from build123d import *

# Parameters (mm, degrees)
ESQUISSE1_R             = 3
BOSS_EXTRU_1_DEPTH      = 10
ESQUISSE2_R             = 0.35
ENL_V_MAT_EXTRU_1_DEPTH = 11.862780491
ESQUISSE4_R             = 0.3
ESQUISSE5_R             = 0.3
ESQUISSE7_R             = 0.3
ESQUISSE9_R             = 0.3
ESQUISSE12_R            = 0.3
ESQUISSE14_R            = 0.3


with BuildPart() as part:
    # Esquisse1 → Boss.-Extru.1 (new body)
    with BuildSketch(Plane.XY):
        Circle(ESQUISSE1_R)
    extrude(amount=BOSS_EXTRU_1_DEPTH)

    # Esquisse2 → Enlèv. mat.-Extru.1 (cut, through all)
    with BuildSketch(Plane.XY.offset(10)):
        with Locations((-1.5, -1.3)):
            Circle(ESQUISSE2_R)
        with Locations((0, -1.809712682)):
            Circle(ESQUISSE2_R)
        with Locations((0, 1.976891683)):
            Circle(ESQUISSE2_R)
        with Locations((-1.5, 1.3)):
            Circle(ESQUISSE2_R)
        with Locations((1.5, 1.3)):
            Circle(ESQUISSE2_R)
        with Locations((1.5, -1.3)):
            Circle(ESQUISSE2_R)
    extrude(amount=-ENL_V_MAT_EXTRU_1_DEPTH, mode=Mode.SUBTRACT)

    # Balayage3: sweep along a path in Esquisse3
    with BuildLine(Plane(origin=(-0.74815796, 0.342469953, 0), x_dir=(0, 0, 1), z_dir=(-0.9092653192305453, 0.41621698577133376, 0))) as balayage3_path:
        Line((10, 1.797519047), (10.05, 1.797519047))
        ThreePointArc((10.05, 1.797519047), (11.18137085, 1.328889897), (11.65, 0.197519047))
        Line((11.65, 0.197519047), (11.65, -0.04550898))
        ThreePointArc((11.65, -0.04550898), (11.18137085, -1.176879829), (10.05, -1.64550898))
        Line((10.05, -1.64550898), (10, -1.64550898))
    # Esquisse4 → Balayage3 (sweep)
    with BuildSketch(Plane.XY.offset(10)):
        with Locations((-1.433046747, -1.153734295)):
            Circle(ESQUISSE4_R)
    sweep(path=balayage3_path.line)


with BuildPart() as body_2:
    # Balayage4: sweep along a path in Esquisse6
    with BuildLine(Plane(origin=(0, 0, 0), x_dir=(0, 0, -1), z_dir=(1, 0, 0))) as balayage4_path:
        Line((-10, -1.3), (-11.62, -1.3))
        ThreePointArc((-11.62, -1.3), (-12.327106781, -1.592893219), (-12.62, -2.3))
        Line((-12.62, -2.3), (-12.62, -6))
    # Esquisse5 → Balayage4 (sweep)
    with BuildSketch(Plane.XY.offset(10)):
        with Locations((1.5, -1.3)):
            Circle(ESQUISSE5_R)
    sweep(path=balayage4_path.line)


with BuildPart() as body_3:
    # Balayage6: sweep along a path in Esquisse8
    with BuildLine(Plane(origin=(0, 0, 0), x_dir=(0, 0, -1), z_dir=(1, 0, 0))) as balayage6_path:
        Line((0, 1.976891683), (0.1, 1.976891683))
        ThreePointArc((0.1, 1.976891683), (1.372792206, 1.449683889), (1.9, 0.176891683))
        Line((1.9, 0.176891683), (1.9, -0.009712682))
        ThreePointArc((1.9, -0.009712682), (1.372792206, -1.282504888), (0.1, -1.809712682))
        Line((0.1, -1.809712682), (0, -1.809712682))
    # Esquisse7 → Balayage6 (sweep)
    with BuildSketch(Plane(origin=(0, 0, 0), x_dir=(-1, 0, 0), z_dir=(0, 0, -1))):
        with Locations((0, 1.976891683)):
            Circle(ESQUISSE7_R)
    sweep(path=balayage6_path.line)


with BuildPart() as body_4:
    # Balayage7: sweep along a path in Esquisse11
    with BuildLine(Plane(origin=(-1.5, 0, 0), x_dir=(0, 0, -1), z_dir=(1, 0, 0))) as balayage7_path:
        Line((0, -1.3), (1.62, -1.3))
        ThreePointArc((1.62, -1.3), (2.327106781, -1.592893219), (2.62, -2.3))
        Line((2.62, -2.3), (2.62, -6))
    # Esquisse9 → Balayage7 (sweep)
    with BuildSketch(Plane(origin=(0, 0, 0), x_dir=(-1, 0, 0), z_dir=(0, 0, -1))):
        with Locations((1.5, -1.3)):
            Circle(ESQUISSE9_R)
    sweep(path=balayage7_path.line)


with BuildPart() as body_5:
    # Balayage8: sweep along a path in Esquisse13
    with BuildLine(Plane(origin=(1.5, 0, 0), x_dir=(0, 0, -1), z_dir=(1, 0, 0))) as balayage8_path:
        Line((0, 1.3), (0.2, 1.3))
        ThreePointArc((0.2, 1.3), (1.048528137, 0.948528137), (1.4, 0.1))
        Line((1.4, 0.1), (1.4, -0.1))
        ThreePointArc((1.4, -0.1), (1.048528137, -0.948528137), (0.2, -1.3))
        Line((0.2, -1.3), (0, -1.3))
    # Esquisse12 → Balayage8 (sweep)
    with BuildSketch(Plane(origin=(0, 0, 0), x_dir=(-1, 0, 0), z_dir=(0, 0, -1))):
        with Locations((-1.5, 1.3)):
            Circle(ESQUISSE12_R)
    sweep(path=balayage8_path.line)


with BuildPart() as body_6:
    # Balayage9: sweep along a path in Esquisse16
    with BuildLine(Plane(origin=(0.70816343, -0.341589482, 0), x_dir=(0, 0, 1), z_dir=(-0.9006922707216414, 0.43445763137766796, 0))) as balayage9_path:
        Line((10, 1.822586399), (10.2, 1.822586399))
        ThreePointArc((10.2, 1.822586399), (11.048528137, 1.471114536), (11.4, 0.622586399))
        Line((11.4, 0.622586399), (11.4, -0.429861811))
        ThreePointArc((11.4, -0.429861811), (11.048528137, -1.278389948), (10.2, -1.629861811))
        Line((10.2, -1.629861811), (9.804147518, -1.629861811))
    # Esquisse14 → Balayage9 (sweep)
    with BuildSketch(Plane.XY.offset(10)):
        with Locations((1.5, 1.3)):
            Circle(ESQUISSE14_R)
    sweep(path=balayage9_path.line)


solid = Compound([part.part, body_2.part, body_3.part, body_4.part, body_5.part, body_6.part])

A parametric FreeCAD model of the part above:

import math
import FreeCAD as App
import Part
import Sketcher
from FreeCAD import Vector

doc = App.newDocument("Part")
params = doc.addObject("Spreadsheet::Sheet", "Params")
for row, (alias, value) in enumerate([
    ("sketch1_diameter", "6 mm"),
    ("pad1_length", "10 mm"),
    ("sketch2_diameter", "0.7 mm"),
    ("sketch3_diameter", "0.6 mm"),
    ("sketch4_radius", "1.6 mm"),
    ("sketch4_height", "0.05 mm"),
    ("sketch5_diameter", "0.6 mm"),
    ("sketch6_radius", "1 mm"),
    ("sketch6_width", "3.7 mm"),
    ("sketch6_height", "1.62 mm"),
    ("sketch7_diameter", "0.6 mm"),
    ("sketch8_radius", "1.8 mm"),
    ("sketch8_height", "0.1 mm"),
    ("sketch9_diameter", "0.6 mm"),
    ("sketch10_radius", "1 mm"),
    ("sketch10_width", "3.7 mm"),
    ("sketch10_height", "1.62 mm"),
    ("sketch11_diameter", "0.6 mm"),
    ("sketch12_radius", "1.2 mm"),
    ("sketch12_width", "0.2 mm"),
    ("sketch13_diameter", "0.6 mm"),
    ("sketch14_radius", "1.2 mm"),
    ("sketch14_height", "0.2 mm"),
], start=1):
    params.set(f"A{row}", alias)
    params.set(f"B{row}", "=" + value)
    params.setAlias(f"B{row}", alias)

body = doc.addObject("PartDesign::Body", "Body")

# Sketch on XY plane
sketch1 = body.newObject("Sketcher::SketchObject", "Sketch")
sketch1.AttachmentSupport = (doc.getObject("XY_Plane"), [""])
sketch1.MapMode = "FlatFace"
sketch1.addGeometry(Part.Circle(Vector(0, 0, 0), Vector(0, 0, 1), 3), False)
sketch1.addConstraint([
    Sketcher.Constraint("Coincident", 0, 3, -1, 1),
    Sketcher.Constraint("Diameter", 0, 6.0),
])
sketch1.setExpression("Constraints[1]", "Params.sketch1_diameter")
pad1 = body.newObject("PartDesign::Pad", "Pad")
pad1.Profile = sketch1
pad1.setExpression("Length", "Params.pad1_length")

# Sketch on XY plane
sketch2 = body.newObject("Sketcher::SketchObject", "Sketch001")
sketch2.AttachmentSupport = (doc.getObject("XY_Plane"), [""])
sketch2.MapMode = "FlatFace"
sketch2.AttachmentOffset = App.Placement(Vector(0, 0, 10), App.Rotation())
sketch2.addGeometry([
    Part.Circle(Vector(-1.5, -1.3, 0), Vector(0, 0, 1), 0.35),  # 0
    Part.Circle(Vector(0, -1.81, 0), Vector(0, 0, 1), 0.35),  # 1
    Part.Circle(Vector(0, 1.98, 0), Vector(0, 0, 1), 0.35),  # 2
    Part.Circle(Vector(-1.5, 1.3, 0), Vector(0, 0, 1), 0.35),  # 3
    Part.Circle(Vector(1.5, 1.3, 0), Vector(0, 0, 1), 0.35),  # 4
    Part.Circle(Vector(1.5, -1.3, 0), Vector(0, 0, 1), 0.35),  # 5
], False)
sketch2.addConstraint([
    Sketcher.Constraint("Equal", 0, 1),
    Sketcher.Constraint("Equal", 1, 2),
    Sketcher.Constraint("Equal", 2, 3),
    Sketcher.Constraint("Equal", 3, 4),
    Sketcher.Constraint("Equal", 4, 5),
    Sketcher.Constraint("Symmetric", 0, 3, 4, 3, -1, 1),
    Sketcher.Constraint("Symmetric", 3, 3, 5, 3, -1, 1),
    Sketcher.Constraint("Symmetric", 3, 3, 4, 3, -2),
    Sketcher.Constraint("PointOnObject", 1, 3, -2),
    Sketcher.Constraint("PointOnObject", 2, 3, -2),
    Sketcher.Constraint("Diameter", 0, 0.7),
    Sketcher.Constraint("DistanceX", 3, 3, 4, 3, 3.0),
    Sketcher.Constraint("DistanceY", 0, 3, -1, 1, 1.3),
    Sketcher.Constraint("DistanceY", -1, 1, 2, 3, 1.976892),
    Sketcher.Constraint("DistanceY", 1, 3, -1, 1, 1.809713),
])
sketch2.setExpression("Constraints[10]", "Params.sketch2_diameter")
pocket1 = body.newObject("PartDesign::Pocket", "Pocket")
pocket1.Profile = sketch2
pocket1.Type = "ThroughAll"

# Sketch on XY plane
sketch3 = body.newObject("Sketcher::SketchObject", "Sketch002")
sketch3.AttachmentSupport = (doc.getObject("XY_Plane"), [""])
sketch3.MapMode = "FlatFace"
sketch3.AttachmentOffset = App.Placement(Vector(0, 0, 10), App.Rotation())
sketch3.addGeometry(Part.Circle(Vector(-1.43, -1.15, 0), Vector(0, 0, 1), 0.3), False)
sketch3.addConstraint([
    Sketcher.Constraint("Diameter", 0, 0.6),
    Sketcher.Constraint("DistanceX", 0, 3, -1, 1, 1.433047),
    Sketcher.Constraint("DistanceY", 0, 3, -1, 1, 1.153734),
])
sketch3.setExpression("Constraints[0]", "Params.sketch3_diameter")

# Sketch on an angled plane
sketch4 = body.newObject("Sketcher::SketchObject", "Sketch003")
sketch4.Placement = App.Placement(Vector(-0.748158, 0.34247, 0), App.Rotation(Vector(-0.416216986, -0.909265319, 0), Vector(0, 0, 1), Vector(-0.909265319, 0.416216986, 0), "ZXY"))
sketch4.addGeometry([
    Part.LineSegment(Vector(-1.8, 10, 0), Vector(-1.8, 10.05, 0)),  # 0
    Part.ArcOfCircle(Part.Circle(Vector(-0.2, 10.05, 0), Vector(0, 0, 1), 1.6), math.radians(90), math.radians(180)),  # 1
    Part.LineSegment(Vector(-0.2, 11.65, 0), Vector(0.05, 11.65, 0)),  # 2
    Part.ArcOfCircle(Part.Circle(Vector(0.05, 10.05, 0), Vector(0, 0, 1), 1.6), math.radians(0), math.radians(90)),  # 3
    Part.LineSegment(Vector(1.65, 10.05, 0), Vector(1.65, 10, 0)),  # 4
], False)
sketch4.addConstraint([
    Sketcher.Constraint("Tangent", 0, 2, 1, 2),
    Sketcher.Constraint("Tangent", 1, 1, 2, 1),
    Sketcher.Constraint("Tangent", 2, 2, 3, 2),
    Sketcher.Constraint("Tangent", 3, 1, 4, 1),
    Sketcher.Constraint("Vertical", 0),
    Sketcher.Constraint("Horizontal", 2),
    Sketcher.Constraint("Vertical", 4),
    Sketcher.Constraint("Equal", 1, 3),
    Sketcher.Constraint("Horizontal", 0, 1, 4, 2),
    Sketcher.Constraint("Radius", 1, 1.6),
    Sketcher.Constraint("DistanceY", -1, 1, 0, 1, 10.0),
    Sketcher.Constraint("DistanceY", 0, 1, 0, 2, 0.05),
    Sketcher.Constraint("DistanceX", 2, 1, 2, 2, 0.243028),
    Sketcher.Constraint("DistanceX", 1, 3, -1, 1, 0.197519),
])
sketch4.setExpression("Constraints[9]", "Params.sketch4_radius")
sketch4.setExpression("Constraints[11]", "Params.sketch4_height")
doc.recompute()

additivepipe = body.newObject("PartDesign::AdditivePipe", "AdditivePipe")
additivepipe.Profile = sketch3
additivepipe.Spine = (sketch4, ["Edge1", "Edge2", "Edge3", "Edge4", "Edge5"])
body2 = doc.addObject("PartDesign::Body", "Body001")

# Sketch on XY plane
sketch5 = body2.newObject("Sketcher::SketchObject", "Sketch004")
sketch5.AttachmentSupport = (doc.getObject("XY_Plane001"), [""])
sketch5.MapMode = "FlatFace"
sketch5.AttachmentOffset = App.Placement(Vector(0, 0, 10), App.Rotation())
sketch5.addGeometry(Part.Circle(Vector(1.5, -1.3, 0), Vector(0, 0, 1), 0.3), False)
sketch5.addConstraint([
    Sketcher.Constraint("Diameter", 0, 0.6),
    Sketcher.Constraint("DistanceX", -1, 1, 0, 3, 1.5),
    Sketcher.Constraint("DistanceY", 0, 3, -1, 1, 1.3),
])
sketch5.setExpression("Constraints[0]", "Params.sketch5_diameter")

# Sketch on YZ plane
sketch6 = body2.newObject("Sketcher::SketchObject", "Sketch005")
sketch6.AttachmentSupport = (doc.getObject("YZ_Plane001"), [""])
sketch6.MapMode = "FlatFace"
sketch6.addGeometry([
    Part.LineSegment(Vector(-1.3, 10, 0), Vector(-1.3, 11.6, 0)),
    Part.ArcOfCircle(Part.Circle(Vector(-2.3, 11.6, 0), Vector(0, 0, 1), 1), math.radians(0), math.radians(90)),
    Part.LineSegment(Vector(-2.3, 12.6, 0), Vector(-6, 12.6, 0)),
], False)
sketch6.addConstraint([
    Sketcher.Constraint("Tangent", 0, 2, 1, 1),
    Sketcher.Constraint("Tangent", 1, 2, 2, 1),
    Sketcher.Constraint("Vertical", 0),
    Sketcher.Constraint("Horizontal", 2),
    Sketcher.Constraint("Radius", 1, 1.0),
    Sketcher.Constraint("DistanceX", 2, 2, 2, 1, 3.7),
    Sketcher.Constraint("DistanceY", -1, 1, 0, 1, 10.0),
    Sketcher.Constraint("DistanceX", 2, 2, -1, 1, 6.0),
    Sketcher.Constraint("DistanceY", 0, 1, 0, 2, 1.62),
])
sketch6.setExpression("Constraints[4]", "Params.sketch6_radius")
sketch6.setExpression("Constraints[5]", "Params.sketch6_width")
sketch6.setExpression("Constraints[8]", "Params.sketch6_height")
doc.recompute()

additivepipe2 = body2.newObject("PartDesign::AdditivePipe", "AdditivePipe001")
additivepipe2.Profile = sketch5
additivepipe2.Spine = (sketch6, ["Edge1", "Edge2", "Edge3"])
body3 = doc.addObject("PartDesign::Body", "Body002")

# Sketch on XY plane
sketch7 = body3.newObject("Sketcher::SketchObject", "Sketch006")
sketch7.AttachmentSupport = (doc.getObject("XY_Plane002"), [""])
sketch7.MapMode = "FlatFace"
sketch7.addGeometry(Part.Circle(Vector(0, 1.98, 0), Vector(0, 0, 1), 0.3), False)
sketch7.addConstraint([
    Sketcher.Constraint("PointOnObject", 0, 3, -2),
    Sketcher.Constraint("Diameter", 0, 0.6),
    Sketcher.Constraint("DistanceY", -1, 1, 0, 3, 1.976892),
])
sketch7.setExpression("Constraints[1]", "Params.sketch7_diameter")

# Sketch on YZ plane
sketch8 = body3.newObject("Sketcher::SketchObject", "Sketch007")
sketch8.AttachmentSupport = (doc.getObject("YZ_Plane002"), [""])
sketch8.MapMode = "FlatFace"
sketch8.addGeometry([
    Part.LineSegment(Vector(1.98, 0, 0), Vector(1.98, -0.1, 0)),  # 0
    Part.ArcOfCircle(Part.Circle(Vector(0.18, -0.1, 0), Vector(0, 0, 1), 1.8), math.radians(-90), math.radians(0)),  # 1
    Part.LineSegment(Vector(0.18, -1.9, 0), Vector(-0.01, -1.9, 0)),  # 2
    Part.ArcOfCircle(Part.Circle(Vector(-0.01, -0.1, 0), Vector(0, 0, 1), 1.8), math.radians(180), math.radians(270)),  # 3
    Part.LineSegment(Vector(-1.81, -0.1, 0), Vector(-1.81, 0, 0)),  # 4
], False)
sketch8.addConstraint([
    Sketcher.Constraint("Tangent", 0, 2, 1, 2),
    Sketcher.Constraint("Tangent", 1, 1, 2, 1),
    Sketcher.Constraint("Tangent", 2, 2, 3, 2),
    Sketcher.Constraint("Tangent", 3, 1, 4, 1),
    Sketcher.Constraint("Vertical", 0),
    Sketcher.Constraint("Horizontal", 2),
    Sketcher.Constraint("Vertical", 4),
    Sketcher.Constraint("Equal", 1, 3),
    Sketcher.Constraint("PointOnObject", 0, 1, -1),
    Sketcher.Constraint("PointOnObject", 4, 2, -1),
    Sketcher.Constraint("Radius", 1, 1.8),
    Sketcher.Constraint("DistanceY", 0, 2, 0, 1, 0.1),
    Sketcher.Constraint("DistanceX", 2, 2, 2, 1, 0.186604),
    Sketcher.Constraint("DistanceX", -1, 1, 1, 3, 0.176892),
])
sketch8.setExpression("Constraints[10]", "Params.sketch8_radius")
sketch8.setExpression("Constraints[11]", "Params.sketch8_height")
doc.recompute()

additivepipe3 = body3.newObject("PartDesign::AdditivePipe", "AdditivePipe002")
additivepipe3.Profile = sketch7
additivepipe3.Spine = (sketch8, ["Edge1", "Edge2", "Edge3", "Edge4", "Edge5"])
body4 = doc.addObject("PartDesign::Body", "Body003")

# Sketch on XY plane
sketch9 = body4.newObject("Sketcher::SketchObject", "Sketch008")
sketch9.AttachmentSupport = (doc.getObject("XY_Plane003"), [""])
sketch9.MapMode = "FlatFace"
sketch9.addGeometry(Part.Circle(Vector(-1.5, -1.3, 0), Vector(0, 0, 1), 0.3), False)
sketch9.addConstraint([
    Sketcher.Constraint("Diameter", 0, 0.6),
    Sketcher.Constraint("DistanceX", 0, 3, -1, 1, 1.5),
    Sketcher.Constraint("DistanceY", 0, 3, -1, 1, 1.3),
])
sketch9.setExpression("Constraints[0]", "Params.sketch9_diameter")

# Sketch on YZ plane
sketch10 = body4.newObject("Sketcher::SketchObject", "Sketch009")
sketch10.AttachmentSupport = (doc.getObject("YZ_Plane003"), [""])
sketch10.MapMode = "FlatFace"
sketch10.AttachmentOffset = App.Placement(Vector(0, 0, -1.5), App.Rotation())
sketch10.addGeometry([
    Part.LineSegment(Vector(-1.3, 0, 0), Vector(-1.3, -1.6, 0)),
    Part.ArcOfCircle(Part.Circle(Vector(-2.3, -1.6, 0), Vector(0, 0, 1), 1), math.radians(-90), math.radians(0)),
    Part.LineSegment(Vector(-2.3, -2.6, 0), Vector(-6, -2.6, 0)),
], False)
sketch10.addConstraint([
    Sketcher.Constraint("Tangent", 0, 2, 1, 2),
    Sketcher.Constraint("Tangent", 1, 1, 2, 1),
    Sketcher.Constraint("Vertical", 0),
    Sketcher.Constraint("Horizontal", 2),
    Sketcher.Constraint("PointOnObject", 0, 1, -1),
    Sketcher.Constraint("Radius", 1, 1.0),
    Sketcher.Constraint("DistanceX", 2, 2, 2, 1, 3.7),
    Sketcher.Constraint("DistanceX", 2, 2, -1, 1, 6.0),
    Sketcher.Constraint("DistanceY", 0, 2, 0, 1, 1.62),
])
sketch10.setExpression("Constraints[5]", "Params.sketch10_radius")
sketch10.setExpression("Constraints[6]", "Params.sketch10_width")
sketch10.setExpression("Constraints[8]", "Params.sketch10_height")
doc.recompute()

additivepipe4 = body4.newObject("PartDesign::AdditivePipe", "AdditivePipe003")
additivepipe4.Profile = sketch9
additivepipe4.Spine = (sketch10, ["Edge1", "Edge2", "Edge3"])
body5 = doc.addObject("PartDesign::Body", "Body004")

# Sketch on XY plane
sketch11 = body5.newObject("Sketcher::SketchObject", "Sketch010")
sketch11.AttachmentSupport = (doc.getObject("XY_Plane004"), [""])
sketch11.MapMode = "FlatFace"
sketch11.addGeometry(Part.Circle(Vector(1.5, 1.3, 0), Vector(0, 0, 1), 0.3), False)
sketch11.addConstraint([
    Sketcher.Constraint("Diameter", 0, 0.6),
    Sketcher.Constraint("DistanceX", -1, 1, 0, 3, 1.5),
    Sketcher.Constraint("DistanceY", -1, 1, 0, 3, 1.3),
])
sketch11.setExpression("Constraints[0]", "Params.sketch11_diameter")

# Sketch on YZ plane
sketch12 = body5.newObject("Sketcher::SketchObject", "Sketch011")
sketch12.AttachmentSupport = (doc.getObject("YZ_Plane004"), [""])
sketch12.MapMode = "FlatFace"
sketch12.AttachmentOffset = App.Placement(Vector(0, 0, 1.5), App.Rotation())
sketch12.addGeometry([
    Part.LineSegment(Vector(1.3, 0, 0), Vector(1.3, -0.2, 0)),  # 0
    Part.ArcOfCircle(Part.Circle(Vector(0.1, -0.2, 0), Vector(0, 0, 1), 1.2), math.radians(-90), math.radians(0)),  # 1
    Part.LineSegment(Vector(0.1, -1.4, 0), Vector(-0.1, -1.4, 0)),  # 2
    Part.ArcOfCircle(Part.Circle(Vector(-0.1, -0.2, 0), Vector(0, 0, 1), 1.2), math.radians(-180), math.radians(-90)),  # 3
    Part.LineSegment(Vector(-1.3, -0.2, 0), Vector(-1.3, 0, 0)),  # 4
], False)
sketch12.addConstraint([
    Sketcher.Constraint("Tangent", 0, 2, 1, 2),
    Sketcher.Constraint("Tangent", 1, 1, 2, 1),
    Sketcher.Constraint("Tangent", 2, 2, 3, 2),
    Sketcher.Constraint("Tangent", 3, 1, 4, 1),
    Sketcher.Constraint("Vertical", 0),
    Sketcher.Constraint("Horizontal", 2),
    Sketcher.Constraint("Vertical", 4),
    Sketcher.Constraint("Equal", 1, 3),
    Sketcher.Constraint("Symmetric", 0, 1, 4, 2, -1, 1),
    Sketcher.Constraint("PointOnObject", 0, 1, -1),
    Sketcher.Constraint("Equal", 2, 0),
    Sketcher.Constraint("Radius", 1, 1.2),
    Sketcher.Constraint("DistanceX", 2, 2, 2, 1, 0.2),
])
sketch12.setExpression("Constraints[11]", "Params.sketch12_radius")
sketch12.setExpression("Constraints[12]", "Params.sketch12_width")
doc.recompute()

additivepipe5 = body5.newObject("PartDesign::AdditivePipe", "AdditivePipe004")
additivepipe5.Profile = sketch11
additivepipe5.Spine = (sketch12, ["Edge1", "Edge2", "Edge3", "Edge4", "Edge5"])
body6 = doc.addObject("PartDesign::Body", "Body005")

# Sketch on XY plane
sketch13 = body6.newObject("Sketcher::SketchObject", "Sketch012")
sketch13.AttachmentSupport = (doc.getObject("XY_Plane005"), [""])
sketch13.MapMode = "FlatFace"
sketch13.AttachmentOffset = App.Placement(Vector(0, 0, 10), App.Rotation())
sketch13.addGeometry(Part.Circle(Vector(1.5, 1.3, 0), Vector(0, 0, 1), 0.3), False)
sketch13.addConstraint([
    Sketcher.Constraint("Diameter", 0, 0.6),
    Sketcher.Constraint("DistanceX", -1, 1, 0, 3, 1.5),
    Sketcher.Constraint("DistanceY", -1, 1, 0, 3, 1.3),
])
sketch13.setExpression("Constraints[0]", "Params.sketch13_diameter")

# Sketch on an angled plane
sketch14 = body6.newObject("Sketcher::SketchObject", "Sketch013")
sketch14.Placement = App.Placement(Vector(0.708163, -0.341589, 0), App.Rotation(Vector(0.434457631, 0.900692271, 0), Vector(0, 0, 1), Vector(0.900692271, -0.434457631, 0), "ZXY"))
sketch14.addGeometry([
    Part.LineSegment(Vector(1.82, 10, 0), Vector(1.82, 10.2, 0)),  # 0
    Part.ArcOfCircle(Part.Circle(Vector(0.62, 10.2, 0), Vector(0, 0, 1), 1.2), math.radians(0), math.radians(90)),  # 1
    Part.LineSegment(Vector(0.62, 11.4, 0), Vector(-0.43, 11.4, 0)),  # 2
    Part.ArcOfCircle(Part.Circle(Vector(-0.43, 10.2, 0), Vector(0, 0, 1), 1.2), math.radians(90), math.radians(180)),  # 3
    Part.LineSegment(Vector(-1.63, 10.2, 0), Vector(-1.63, 9.8, 0)),  # 4
], False)
sketch14.addConstraint([
    Sketcher.Constraint("Tangent", 0, 2, 1, 1),
    Sketcher.Constraint("Tangent", 1, 2, 2, 1),
    Sketcher.Constraint("Tangent", 2, 2, 3, 1),
    Sketcher.Constraint("Tangent", 3, 2, 4, 1),
    Sketcher.Constraint("Vertical", 0),
    Sketcher.Constraint("Horizontal", 2),
    Sketcher.Constraint("Vertical", 4),
    Sketcher.Constraint("Equal", 1, 3),
    Sketcher.Constraint("Radius", 1, 1.2),
    Sketcher.Constraint("DistanceY", 0, 1, 0, 2, 0.2),
    Sketcher.Constraint("DistanceY", -1, 1, 0, 1, 10.0),
    Sketcher.Constraint("DistanceX", 2, 2, 2, 1, 1.052448),
    Sketcher.Constraint("DistanceY", 4, 2, 4, 1, 0.395852),
    Sketcher.Constraint("DistanceX", 3, 3, -1, 1, 0.429862),
])
sketch14.setExpression("Constraints[8]", "Params.sketch14_radius")
sketch14.setExpression("Constraints[9]", "Params.sketch14_height")
doc.recompute()

additivepipe6 = body6.newObject("PartDesign::AdditivePipe", "AdditivePipe005")
additivepipe6.Profile = sketch13
additivepipe6.Spine = (sketch14, ["Edge1", "Edge2", "Edge3", "Edge4", "Edge5"])

doc.recompute()
